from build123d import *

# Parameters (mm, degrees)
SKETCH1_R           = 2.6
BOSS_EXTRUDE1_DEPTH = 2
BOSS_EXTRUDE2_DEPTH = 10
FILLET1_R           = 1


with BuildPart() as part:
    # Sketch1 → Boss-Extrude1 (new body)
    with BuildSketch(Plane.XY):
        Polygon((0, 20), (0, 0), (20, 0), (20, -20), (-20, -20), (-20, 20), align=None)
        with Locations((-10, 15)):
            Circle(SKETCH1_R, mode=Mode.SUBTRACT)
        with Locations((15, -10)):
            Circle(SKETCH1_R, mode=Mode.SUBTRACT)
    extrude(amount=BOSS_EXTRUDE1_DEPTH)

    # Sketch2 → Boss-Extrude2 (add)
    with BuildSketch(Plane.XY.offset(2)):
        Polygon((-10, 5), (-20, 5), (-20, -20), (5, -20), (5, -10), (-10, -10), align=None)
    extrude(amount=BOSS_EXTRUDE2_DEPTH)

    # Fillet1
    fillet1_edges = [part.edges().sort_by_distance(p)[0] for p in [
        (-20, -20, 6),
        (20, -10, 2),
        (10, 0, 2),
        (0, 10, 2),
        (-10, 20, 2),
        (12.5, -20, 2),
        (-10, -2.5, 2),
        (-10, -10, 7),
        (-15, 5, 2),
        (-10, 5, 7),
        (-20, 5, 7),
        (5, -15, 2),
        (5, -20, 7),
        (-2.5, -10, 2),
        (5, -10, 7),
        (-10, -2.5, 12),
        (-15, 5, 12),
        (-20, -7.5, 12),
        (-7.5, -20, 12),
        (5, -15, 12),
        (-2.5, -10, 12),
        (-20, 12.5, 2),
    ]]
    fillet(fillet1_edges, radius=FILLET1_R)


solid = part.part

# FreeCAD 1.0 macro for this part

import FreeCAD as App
import Part
import Sketcher

V = App.Vector
Q = App.Units.Quantity


def edges_at(feature, points):
    """Names of the edges that pass closest to the given points."""
    edges = feature.Shape.Edges
    near = lambda p: min(range(len(edges)), key=lambda i: edges[i].distToShape(Part.Vertex(*p))[0])
    return sorted({f"Edge{near(p) + 1}" for p in points})

doc = App.newDocument("Part")
body = doc.addObject("PartDesign::Body", "Body")

sketch1 = body.newObject("Sketcher::SketchObject", "Sketch")
sketch1.AttachmentSupport = (doc.getObject("XY_Plane"), [""])
sketch1.MapMode = "FlatFace"
sketch1.addGeometry(Part.LineSegment(V(0, 0, 0), V(0, 20, 0)), False)
sketch1.addGeometry(Part.LineSegment(V(0, 20, 0), V(-20, 20, 0)), False)
sketch1.addGeometry(Part.LineSegment(V(-20, 20, 0), V(-20, -20, 0)), False)
sketch1.addGeometry(Part.LineSegment(V(-20, -20, 0), V(20, -20, 0)), False)
sketch1.addGeometry(Part.LineSegment(V(20, -20, 0), V(20, 0, 0)), False)
sketch1.addGeometry(Part.LineSegment(V(20, 0, 0), V(0, 0, 0)), False)
sketch1.addGeometry(Part.Circle(V(15, -10, 0), V(0, 0, 1), 2.6), False)
sketch1.addGeometry(Part.Circle(V(-10, 15, 0), V(0, 0, 1), 2.6), False)
sketch1.addConstraint(Sketcher.Constraint("Coincident", 0, 2, 1, 1))
sketch1.addConstraint(Sketcher.Constraint("Coincident", 1, 2, 2, 1))
sketch1.addConstraint(Sketcher.Constraint("Coincident", 2, 2, 3, 1))
sketch1.addConstraint(Sketcher.Constraint("Coincident", 3, 2, 4, 1))
sketch1.addConstraint(Sketcher.Constraint("Coincident", 4, 2, 5, 1))
sketch1.addConstraint(Sketcher.Constraint("Coincident", 5, 2, 0, 1))
sketch1.addConstraint(Sketcher.Constraint("Vertical", 0))
sketch1.addConstraint(Sketcher.Constraint("Horizontal", 1))
sketch1.addConstraint(Sketcher.Constraint("Vertical", 2))
sketch1.addConstraint(Sketcher.Constraint("Horizontal", 3))
sketch1.addConstraint(Sketcher.Constraint("Vertical", 4))
sketch1.addConstraint(Sketcher.Constraint("Horizontal", 5))
sketch1.addConstraint(Sketcher.Constraint("Coincident", 5, 2, -1, 1))
sketch1.addConstraint(Sketcher.Constraint("Equal", 6, 7))
sketch1.addConstraint(Sketcher.Constraint("Symmetric", 1, 2, 3, 2, -1, 1))
sketch1.addConstraint(Sketcher.Constraint("Equal", 5, 0))
sketch1.addConstraint(Sketcher.Constraint("Diameter", 6, Q("5.2 mm")))
sketch1.addConstraint(Sketcher.Constraint("DistanceX", 1, 2, 1, 1, Q("20 mm")))
sketch1.addConstraint(Sketcher.Constraint("DistanceX", -1, 1, 6, 3, Q("15 mm")))
sketch1.addConstraint(Sketcher.Constraint("DistanceY", 6, 3, -1, 1, Q("10 mm")))
sketch1.addConstraint(Sketcher.Constraint("DistanceX", 7, 3, -1, 1, Q("10 mm")))
sketch1.addConstraint(Sketcher.Constraint("DistanceY", -1, 1, 7, 3, Q("15 mm")))
pad1 = body.newObject("PartDesign::Pad", "Pad")
pad1.Profile = sketch1
pad1.Length = 2

sketch2 = body.newObject("Sketcher::SketchObject", "Sketch001")
sketch2.AttachmentSupport = (doc.getObject("XY_Plane"), [""])
sketch2.MapMode = "FlatFace"
sketch2.AttachmentOffset = App.Placement(V(0, 0, 2), App.Rotation())
sketch2.addGeometry(Part.LineSegment(V(-10, 5, 0), V(-20, 5, 0)), False)
sketch2.addGeometry(Part.LineSegment(V(-20, 5, 0), V(-20, -20, 0)), False)
sketch2.addGeometry(Part.LineSegment(V(-20, -20, 0), V(5, -20, 0)), False)
sketch2.addGeometry(Part.LineSegment(V(5, -20, 0), V(5, -10, 0)), False)
sketch2.addGeometry(Part.LineSegment(V(5, -10, 0), V(-10, -10, 0)), False)
sketch2.addGeometry(Part.LineSegment(V(-10, -10, 0), V(-10, 5, 0)), False)
sketch2.addConstraint(Sketcher.Constraint("Coincident", 0, 2, 1, 1))
sketch2.addConstraint(Sketcher.Constraint("Coincident", 1, 2, 2, 1))
sketch2.addConstraint(Sketcher.Constraint("Coincident", 2, 2, 3, 1))
sketch2.addConstraint(Sketcher.Constraint("Coincident", 3, 2, 4, 1))
sketch2.addConstraint(Sketcher.Constraint("Coincident", 4, 2, 5, 1))
sketch2.addConstraint(Sketcher.Constraint("Coincident", 5, 2, 0, 1))
sketch2.addConstraint(Sketcher.Constraint("Horizontal", 0))
sketch2.addConstraint(Sketcher.Constraint("Vertical", 1))
sketch2.addConstraint(Sketcher.Constraint("Horizontal", 2))
sketch2.addConstraint(Sketcher.Constraint("Vertical", 3))
sketch2.addConstraint(Sketcher.Constraint("Horizontal", 4))
sketch2.addConstraint(Sketcher.Constraint("Vertical", 5))
sketch2.addConstraint(Sketcher.Constraint("Equal", 2, 1))
sketch2.addConstraint(Sketcher.Constraint("Equal", 0, 3))
sketch2.addConstraint(Sketcher.Constraint("DistanceX", 0, 2, 0, 1, Q("10 mm")))
sketch2.addConstraint(Sketcher.Constraint("DistanceX", 2, 1, 2, 2, Q("25 mm")))
sketch2.addConstraint(Sketcher.Constraint("DistanceX", 0, 2, -1, 1, Q("20 mm")))
sketch2.addConstraint(Sketcher.Constraint("DistanceY", -1, 1, 0, 2, Q("5 mm")))
pad2 = body.newObject("PartDesign::Pad", "Pad001")
pad2.Profile = sketch2
pad2.Length = 10
doc.recompute()

fillet = body.newObject("PartDesign::Fillet", "Fillet")
fillet.Base = (pad2, edges_at(pad2, [
    (-20, -20, 6),
    (20, -10, 2),
    (10, 0, 2),
    (0, 10, 2),
    (-10, 20, 2),
    (12.5, -20, 2),
    (-10, -2.5, 2),
    (-10, -10, 7),
    (-15, 5, 2),
    (-10, 5, 7),
    (-20, 5, 7),
    (5, -15, 2),
    (5, -20, 7),
    (-2.5, -10, 2),
    (5, -10, 7),
    (-10, -2.5, 12),
    (-15, 5, 12),
    (-20, -7.5, 12),
    (-7.5, -20, 12),
    (5, -15, 12),
    (-2.5, -10, 12),
    (-20, 12.5, 2),
]))
fillet.Radius = 1

doc.recompute()
